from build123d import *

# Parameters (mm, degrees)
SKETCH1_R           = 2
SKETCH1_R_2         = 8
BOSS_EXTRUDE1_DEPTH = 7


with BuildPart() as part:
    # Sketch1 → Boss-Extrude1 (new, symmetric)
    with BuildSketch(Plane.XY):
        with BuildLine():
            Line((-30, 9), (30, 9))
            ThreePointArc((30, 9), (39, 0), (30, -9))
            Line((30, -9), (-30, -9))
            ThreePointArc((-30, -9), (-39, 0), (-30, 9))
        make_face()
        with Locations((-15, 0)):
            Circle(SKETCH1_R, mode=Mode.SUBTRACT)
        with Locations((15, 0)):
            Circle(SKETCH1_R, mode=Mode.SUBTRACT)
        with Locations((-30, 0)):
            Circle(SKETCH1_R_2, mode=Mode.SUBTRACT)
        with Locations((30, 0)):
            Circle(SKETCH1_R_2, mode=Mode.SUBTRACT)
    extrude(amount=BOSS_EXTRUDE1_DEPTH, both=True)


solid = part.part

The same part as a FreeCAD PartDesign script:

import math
import FreeCAD as App
import Part
import Sketcher
from FreeCAD import Vector

doc = App.newDocument("Part")
body = doc.addObject("PartDesign::Body", "Body")

# Sketch on XY plane
sketch1 = body.newObject("Sketcher::SketchObject", "Sketch")
sketch1.AttachmentSupport = (doc.getObject("XY_Plane"), [""])
sketch1.MapMode = "FlatFace"
sketch1.addGeometry([
    Part.LineSegment(Vector(30, 9, 0), Vector(-30, 9, 0)),  # 0
    Part.ArcOfCircle(Part.Circle(Vector(-30, 0, 0), Vector(0, 0, 1), 9), math.radians(90), math.radians(270)),  # 1
    Part.LineSegment(Vector(-30, -9, 0), Vector(30, -9, 0)),  # 2
    Part.ArcOfCircle(Part.Circle(Vector(30, 0, 0), Vector(0, 0, 1), 9), math.radians(-90), math.radians(90)),  # 3
    Part.Circle(Vector(30, 0, 0), Vector(0, 0, 1), 8),  # 4
    Part.Circle(Vector(15, 0, 0), Vector(0, 0, 1), 2),  # 5
    Part.Circle(Vector(-15, 0, 0), Vector(0, 0, 1), 2),  # 6
    Part.Circle(Vector(-30, 0, 0), Vector(0, 0, 1), 8),  # 7
], False)
sketch1.addConstraint([
    Sketcher.Constraint("Tangent", 0, 2, 1, 1),
    Sketcher.Constraint("Tangent", 1, 2, 2, 1),
    Sketcher.Constraint("Tangent", 2, 2, 3, 1),
    Sketcher.Constraint("Tangent", 3, 2, 0, 1),
    Sketcher.Constraint("Horizontal", 0),
    Sketcher.Constraint("Horizontal", 2),
    Sketcher.Constraint("Coincident", 4, 3, 3, 3),
    Sketcher.Constraint("Coincident", 7, 3, 1, 3),
    Sketcher.Constraint("Equal", 5, 6),
    Sketcher.Constraint("Equal", 4, 7),
    Sketcher.Constraint("Symmetric", 1, 3, 3, 3, -1, 1),
    Sketcher.Constraint("Symmetric", 5, 3, 6, 3, -1, 1),
    Sketcher.Constraint("PointOnObject", 5, 3, -1),
    Sketcher.Constraint("Diameter", 4, 16.0),
    Sketcher.Constraint("Diameter", 5, 4.0),
    Sketcher.Constraint("Radius", 1, 9.0),
    Sketcher.Constraint("DistanceX", 0, 2, 0, 1, 60.0),
    Sketcher.Constraint("DistanceX", -1, 1, 5, 3, 15.0),
])
pad1 = body.newObject("PartDesign::Pad", "Pad")
pad1.Profile = sketch1
pad1.Length = 14
pad1.Midplane = True

doc.recompute()
